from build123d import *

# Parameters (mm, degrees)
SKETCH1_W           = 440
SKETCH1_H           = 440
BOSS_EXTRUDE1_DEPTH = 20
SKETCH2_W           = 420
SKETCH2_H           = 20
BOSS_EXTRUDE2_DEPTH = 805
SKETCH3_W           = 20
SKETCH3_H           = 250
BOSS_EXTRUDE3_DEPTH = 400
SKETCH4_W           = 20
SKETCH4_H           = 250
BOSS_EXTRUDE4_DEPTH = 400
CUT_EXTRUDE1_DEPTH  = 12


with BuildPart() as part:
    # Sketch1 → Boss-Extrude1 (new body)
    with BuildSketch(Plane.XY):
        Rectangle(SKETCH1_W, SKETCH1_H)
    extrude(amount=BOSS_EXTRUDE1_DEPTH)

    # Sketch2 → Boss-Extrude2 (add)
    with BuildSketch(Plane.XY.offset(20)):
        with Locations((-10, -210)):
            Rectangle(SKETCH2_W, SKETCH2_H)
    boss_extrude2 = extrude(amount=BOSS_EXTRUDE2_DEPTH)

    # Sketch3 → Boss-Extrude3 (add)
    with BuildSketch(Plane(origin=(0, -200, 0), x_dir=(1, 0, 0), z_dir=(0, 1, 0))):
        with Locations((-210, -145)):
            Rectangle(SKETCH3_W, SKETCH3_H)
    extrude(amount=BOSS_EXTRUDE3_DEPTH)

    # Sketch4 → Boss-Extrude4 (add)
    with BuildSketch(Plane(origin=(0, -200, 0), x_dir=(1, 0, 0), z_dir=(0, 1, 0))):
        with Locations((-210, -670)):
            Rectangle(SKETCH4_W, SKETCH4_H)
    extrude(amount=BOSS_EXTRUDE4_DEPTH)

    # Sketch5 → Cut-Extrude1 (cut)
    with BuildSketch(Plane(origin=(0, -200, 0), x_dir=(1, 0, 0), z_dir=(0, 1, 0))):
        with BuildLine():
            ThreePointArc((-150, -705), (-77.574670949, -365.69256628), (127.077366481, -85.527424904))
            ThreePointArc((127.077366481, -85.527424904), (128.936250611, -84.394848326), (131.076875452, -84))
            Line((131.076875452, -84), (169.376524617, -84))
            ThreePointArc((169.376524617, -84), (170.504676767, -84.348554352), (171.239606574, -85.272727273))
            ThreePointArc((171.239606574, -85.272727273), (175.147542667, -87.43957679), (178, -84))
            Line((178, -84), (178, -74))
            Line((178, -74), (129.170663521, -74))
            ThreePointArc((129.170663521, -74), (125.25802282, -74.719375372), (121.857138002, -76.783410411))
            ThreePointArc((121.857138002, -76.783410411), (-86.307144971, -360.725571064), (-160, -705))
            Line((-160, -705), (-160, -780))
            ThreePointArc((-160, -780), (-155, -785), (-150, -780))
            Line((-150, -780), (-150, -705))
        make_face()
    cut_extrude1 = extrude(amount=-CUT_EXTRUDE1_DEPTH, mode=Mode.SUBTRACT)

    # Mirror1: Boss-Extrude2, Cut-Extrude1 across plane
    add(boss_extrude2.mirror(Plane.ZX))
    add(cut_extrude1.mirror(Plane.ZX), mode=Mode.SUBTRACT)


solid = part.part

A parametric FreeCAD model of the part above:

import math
import FreeCAD as App
import Part
import Sketcher


def add_polygon(sketch, points):
    """Adds a closed chain of lines whose ends are joined by coincident constraints."""
    first, n = sketch.GeometryCount, len(points)
    for a, b in zip(points, points[1:] + points[:1]):
        sketch.addGeometry(Part.LineSegment(App.Vector(*a, 0), App.Vector(*b, 0)), False)
    for i in range(n):
        sketch.addConstraint(Sketcher.Constraint("Coincident", first + i, 2, first + (i + 1) % n, 1))

doc = App.newDocument("Part")
body = doc.addObject("PartDesign::Body", "Body")

# Sketch on XY plane
sketch1 = body.newObject("Sketcher::SketchObject", "Sketch")
sketch1.AttachmentSupport = (doc.getObject("XY_Plane"), [""])
sketch1.MapMode = "FlatFace"
add_polygon(sketch1, [(-220, 220), (-220, -220), (220, -220), (220, 220)])  # lines 0-3
sketch1.addConstraint([
    Sketcher.Constraint("Vertical", 0),
    Sketcher.Constraint("Horizontal", 1),
    Sketcher.Constraint("Vertical", 2),
    Sketcher.Constraint("Horizontal", 3),
    Sketcher.Constraint("Symmetric", 0, 2, 2, 2, -1, 1),
    Sketcher.Constraint("Equal", 3, 0),
    Sketcher.Constraint("DistanceX", 1, 1, 1, 2, 440.0),
])
pad1 = body.newObject("PartDesign::Pad", "Pad")
pad1.Profile = sketch1
pad1.Length = 20

# Sketch on XY plane
sketch2 = body.newObject("Sketcher::SketchObject", "Sketch001")
sketch2.AttachmentSupport = (doc.getObject("XY_Plane"), [""])
sketch2.MapMode = "FlatFace"
sketch2.AttachmentOffset = App.Placement(App.Vector(0, 0, 20), App.Rotation())
add_polygon(sketch2, [(-220, -200), (-220, -220), (200, -220), (200, -200)])  # lines 0-3
sketch2.addConstraint([
    Sketcher.Constraint("Vertical", 0),
    Sketcher.Constraint("Horizontal", 1),
    Sketcher.Constraint("Vertical", 2),
    Sketcher.Constraint("Horizontal", 3),
    Sketcher.Constraint("DistanceX", 1, 1, 1, 2, 420.0),
    Sketcher.Constraint("DistanceY", 0, 2, 0, 1, 20.0),
    Sketcher.Constraint("DistanceX", 0, 2, -1, 1, 220.0),
    Sketcher.Constraint("DistanceY", 0, 2, -1, 1, 220.0),
])
pad2 = body.newObject("PartDesign::Pad", "Pad001")
pad2.Profile = sketch2
pad2.Length = 805

# Sketch on XZ plane
sketch3 = body.newObject("Sketcher::SketchObject", "Sketch002")
sketch3.AttachmentSupport = (doc.getObject("XZ_Plane"), [""])
sketch3.MapMode = "FlatFace"
sketch3.AttachmentOffset = App.Placement(App.Vector(0, 0, 200), App.Rotation())
add_polygon(sketch3, [(-220, 20), (-220, 270), (-200, 270), (-200, 20)])  # lines 0-3
sketch3.addConstraint([
    Sketcher.Constraint("Vertical", 0),
    Sketcher.Constraint("Horizontal", 1),
    Sketcher.Constraint("Vertical", 2),
    Sketcher.Constraint("Horizontal", 3),
    Sketcher.Constraint("DistanceX", 1, 1, 1, 2, 20.0),
    Sketcher.Constraint("DistanceY", 0, 1, 0, 2, 250.0),
    Sketcher.Constraint("DistanceX", 0, 2, -1, 1, 220.0),
    Sketcher.Constraint("DistanceY", -1, 1, 0, 2, 270.0),
])
pad3 = body.newObject("PartDesign::Pad", "Pad002")
pad3.Profile = sketch3
pad3.Length = 400
pad3.Reversed = True

# Sketch on XZ plane
sketch4 = body.newObject("Sketcher::SketchObject", "Sketch003")
sketch4.AttachmentSupport = (doc.getObject("XZ_Plane"), [""])
sketch4.MapMode = "FlatFace"
sketch4.AttachmentOffset = App.Placement(App.Vector(0, 0, 200), App.Rotation())
add_polygon(sketch4, [(-220, 545), (-220, 795), (-200, 795), (-200, 545)])  # lines 0-3
sketch4.addConstraint([
    Sketcher.Constraint("Vertical", 0),
    Sketcher.Constraint("Horizontal", 1),
    Sketcher.Constraint("Vertical", 2),
    Sketcher.Constraint("Horizontal", 3),
    Sketcher.Constraint("DistanceX", 1, 1, 1, 2, 20.0),
    Sketcher.Constraint("DistanceY", 0, 1, 0, 2, 250.0),
    Sketcher.Constraint("DistanceX", 0, 2, -1, 1, 220.0),
    Sketcher.Constraint("DistanceY", -1, 1, 0, 2, 795.0),
])
pad4 = body.newObject("PartDesign::Pad", "Pad003")
pad4.Profile = sketch4
pad4.Length = 400
pad4.Reversed = True

# Sketch on XZ plane
sketch5 = body.newObject("Sketcher::SketchObject", "Sketch004")
sketch5.AttachmentSupport = (doc.getObject("XZ_Plane"), [""])
sketch5.MapMode = "FlatFace"
sketch5.AttachmentOffset = App.Placement(App.Vector(0, 0, 200), App.Rotation())
sketch5.addGeometry([
    Part.ArcOfCircle(Part.Circle(App.Vector(681, 705, 0), App.Vector(0, 0, 1), 831), math.radians(-180), math.radians(-132)),  # 0
    Part.ArcOfCircle(Part.Circle(App.Vector(131.1, 90, 0), App.Vector(0, 0, 1), 6), math.radians(-132), math.radians(-90)),  # 1
    Part.LineSegment(App.Vector(131.1, 84, 0), App.Vector(169.4, 84, 0)),  # 2
    Part.ArcOfCircle(Part.Circle(App.Vector(169.4, 86, 0), App.Vector(0, 0, 1), 2), math.radians(-90), math.radians(-21)),  # 3
    Part.ArcOfCircle(Part.Circle(App.Vector(174.5, 84, 0), App.Vector(0, 0, 1), 3.5), math.radians(0), math.radians(159)),  # 4
    Part.LineSegment(App.Vector(178, 84, 0), App.Vector(178, 74, 0)),  # 5
    Part.LineSegment(App.Vector(178, 74, 0), App.Vector(129.2, 74, 0)),  # 6
    Part.ArcOfCircle(Part.Circle(App.Vector(129.2, 85, 0), App.Vector(0, 0, 1), 11), math.radians(-132), math.radians(-90)),  # 7
    Part.ArcOfCircle(Part.Circle(App.Vector(681, 705, 0), App.Vector(0, 0, 1), 841), math.radians(180), math.radians(228)),  # 8
    Part.LineSegment(App.Vector(-160, 705, 0), App.Vector(-160, 780, 0)),  # 9
    Part.ArcOfCircle(Part.Circle(App.Vector(-155, 780, 0), App.Vector(0, 0, 1), 5), math.radians(0), math.radians(180)),  # 10
    Part.LineSegment(App.Vector(-150, 780, 0), App.Vector(-150, 705, 0)),  # 11
], False)
sketch5.addConstraint([
    Sketcher.Constraint("Tangent", 0, 2, 1, 1),
    Sketcher.Constraint("Tangent", 1, 2, 2, 1),
    Sketcher.Constraint("Tangent", 2, 2, 3, 1),
    Sketcher.Constraint("Tangent", 3, 2, 4, 2),
    Sketcher.Constraint("Tangent", 4, 1, 5, 1),
    Sketcher.Constraint("Coincident", 5, 2, 6, 1),
    Sketcher.Constraint("Tangent", 6, 2, 7, 2),
    Sketcher.Constraint("Tangent", 7, 1, 8, 2),
    Sketcher.Constraint("Tangent", 8, 1, 9, 1),
    Sketcher.Constraint("Tangent", 9, 2, 10, 2),
    Sketcher.Constraint("Tangent", 10, 1, 11, 1),
    Sketcher.Constraint("Tangent", 11, 2, 0, 1),
    Sketcher.Constraint("Horizontal", 2),
    Sketcher.Constraint("Vertical", 5),
    Sketcher.Constraint("Horizontal", 6),
    Sketcher.Constraint("Vertical", 9),
    Sketcher.Constraint("Vertical", 11),
    Sketcher.Constraint("Coincident", 8, 3, 0, 3),
    Sketcher.Constraint("Horizontal", 4, 3, 1, 2),
    Sketcher.Constraint("Radius", 1, 6.0),
    Sketcher.Constraint("Radius", 3, 2.0),
    Sketcher.Constraint("Radius", 7, 11.0),
    Sketcher.Constraint("Radius", 10, 5.0),
    Sketcher.Constraint("Radius", 4, 3.5),
    Sketcher.Constraint("DistanceY", 5, 2, 5, 1, 10.0),
    Sketcher.Constraint("DistanceY", 9, 1, 9, 2, 75.0),
    Sketcher.Constraint("DistanceY", -1, 1, 0, 3, 705.0),
    Sketcher.Constraint("DistanceY", -1, 1, 1, 3, 90.0),
    Sketcher.Constraint("DistanceX", 10, 3, -1, 1, 155.0),
    Sketcher.Constraint("DistanceX", -1, 1, 4, 1, 178.0),
    Sketcher.Constraint("Radius", 0, 831.02807),
])
pocket1 = body.newObject("PartDesign::Pocket", "Pocket")
pocket1.Profile = sketch5
pocket1.Length = 12
pocket1.Reversed = True
doc.recompute()

mirrored = body.newObject("PartDesign::Mirrored", "Mirrored")
mirrored.Originals = [pad2, pocket1]
mirrored.MirrorPlane = (doc.getObject("XZ_Plane"), [""])
body.Tip = mirrored

doc.recompute()
